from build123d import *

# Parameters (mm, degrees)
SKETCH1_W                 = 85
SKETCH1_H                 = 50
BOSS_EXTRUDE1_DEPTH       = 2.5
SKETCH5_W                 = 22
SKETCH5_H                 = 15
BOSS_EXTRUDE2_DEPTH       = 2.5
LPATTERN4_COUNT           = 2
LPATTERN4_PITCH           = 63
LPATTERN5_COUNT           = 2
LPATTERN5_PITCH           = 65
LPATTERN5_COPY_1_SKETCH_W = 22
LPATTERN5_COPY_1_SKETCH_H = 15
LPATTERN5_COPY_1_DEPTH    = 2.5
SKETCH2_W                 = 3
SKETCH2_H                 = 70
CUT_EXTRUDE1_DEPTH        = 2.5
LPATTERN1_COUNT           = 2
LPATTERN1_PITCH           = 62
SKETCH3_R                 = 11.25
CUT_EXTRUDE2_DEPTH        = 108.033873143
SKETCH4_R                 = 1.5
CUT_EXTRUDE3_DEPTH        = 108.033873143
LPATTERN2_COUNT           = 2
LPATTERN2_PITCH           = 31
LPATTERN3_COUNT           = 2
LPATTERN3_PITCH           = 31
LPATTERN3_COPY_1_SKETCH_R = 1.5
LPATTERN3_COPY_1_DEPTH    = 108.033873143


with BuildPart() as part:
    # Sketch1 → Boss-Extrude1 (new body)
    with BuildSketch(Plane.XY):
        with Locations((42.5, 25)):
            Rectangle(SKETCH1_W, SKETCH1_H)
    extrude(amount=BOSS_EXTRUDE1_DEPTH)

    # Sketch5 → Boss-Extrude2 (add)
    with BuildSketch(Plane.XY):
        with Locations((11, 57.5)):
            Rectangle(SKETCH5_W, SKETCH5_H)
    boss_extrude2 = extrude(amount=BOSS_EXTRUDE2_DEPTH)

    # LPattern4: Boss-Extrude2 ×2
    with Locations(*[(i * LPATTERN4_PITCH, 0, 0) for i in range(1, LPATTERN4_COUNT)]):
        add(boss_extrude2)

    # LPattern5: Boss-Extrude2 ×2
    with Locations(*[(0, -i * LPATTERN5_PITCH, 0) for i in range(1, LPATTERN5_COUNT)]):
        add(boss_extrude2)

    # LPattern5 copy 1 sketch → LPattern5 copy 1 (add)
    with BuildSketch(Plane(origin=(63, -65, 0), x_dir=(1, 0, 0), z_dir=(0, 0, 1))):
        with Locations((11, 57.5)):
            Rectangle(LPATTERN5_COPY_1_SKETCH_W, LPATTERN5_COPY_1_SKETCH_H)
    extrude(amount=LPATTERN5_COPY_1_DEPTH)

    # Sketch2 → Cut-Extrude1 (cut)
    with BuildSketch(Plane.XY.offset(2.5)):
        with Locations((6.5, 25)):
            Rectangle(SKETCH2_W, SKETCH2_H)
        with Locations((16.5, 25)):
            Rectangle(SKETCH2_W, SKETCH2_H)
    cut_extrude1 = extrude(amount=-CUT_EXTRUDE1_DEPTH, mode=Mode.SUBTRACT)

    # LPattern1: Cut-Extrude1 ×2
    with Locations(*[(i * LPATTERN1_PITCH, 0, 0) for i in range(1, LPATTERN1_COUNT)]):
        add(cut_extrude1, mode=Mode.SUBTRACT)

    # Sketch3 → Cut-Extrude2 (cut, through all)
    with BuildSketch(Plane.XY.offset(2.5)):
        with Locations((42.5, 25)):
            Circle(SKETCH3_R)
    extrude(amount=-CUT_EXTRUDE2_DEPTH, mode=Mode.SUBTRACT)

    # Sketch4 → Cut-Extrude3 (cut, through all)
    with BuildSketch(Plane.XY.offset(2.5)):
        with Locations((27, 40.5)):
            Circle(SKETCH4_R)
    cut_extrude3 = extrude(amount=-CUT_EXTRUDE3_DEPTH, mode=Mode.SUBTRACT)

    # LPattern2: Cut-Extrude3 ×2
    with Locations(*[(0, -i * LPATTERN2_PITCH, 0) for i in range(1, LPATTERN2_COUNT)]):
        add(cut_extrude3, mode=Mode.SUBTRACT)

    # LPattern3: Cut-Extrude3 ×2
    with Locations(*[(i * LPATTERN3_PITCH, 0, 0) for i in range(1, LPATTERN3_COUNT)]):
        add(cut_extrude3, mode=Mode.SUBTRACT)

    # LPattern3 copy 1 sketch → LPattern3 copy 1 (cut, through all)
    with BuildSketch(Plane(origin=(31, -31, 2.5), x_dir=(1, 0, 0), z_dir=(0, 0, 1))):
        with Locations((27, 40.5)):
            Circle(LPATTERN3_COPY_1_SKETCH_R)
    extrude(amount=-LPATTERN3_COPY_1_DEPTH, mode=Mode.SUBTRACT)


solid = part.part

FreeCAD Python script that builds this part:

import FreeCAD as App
import Part
import Sketcher
from FreeCAD import Vector
Q = App.Units.Quantity


def add_polygon(sketch, points):
    """Adds a closed chain of lines whose ends are joined by coincident constraints."""
    first, n = sketch.GeometryCount, len(points)
    for a, b in zip(points, points[1:] + points[:1]):
        sketch.addGeometry(Part.LineSegment(App.Vector(*a, 0), App.Vector(*b, 0)), False)
    for i in range(n):
        sketch.addConstraint(Sketcher.Constraint("Coincident", first + i, 2, first + (i + 1) % n, 1))

doc = App.newDocument("Part")
body = doc.addObject("PartDesign::Body", "Body")

# Sketch on XY plane
sketch1 = doc.addObject("Sketcher::SketchObject", "Sketch")
body.addObject(sketch1)
sketch1.AttachmentSupport = (doc.XY_Plane, [""])
sketch1.MapMode = "FlatFace"
add_polygon(sketch1, [(0, 50), (0, 0), (85, 0), (85, 50)])  # lines 0-3
sketch1.addConstraint([
    Sketcher.Constraint("Vertical", 0),
    Sketcher.Constraint("Horizontal", 1),
    Sketcher.Constraint("Vertical", 2),
    Sketcher.Constraint("Horizontal", 3),
    Sketcher.Constraint("Coincident", 0, 2, -1, 1),
    Sketcher.Constraint("DistanceX", 1, 1, 1, 2, Q("85 mm")),
    Sketcher.Constraint("DistanceY", 0, 2, 0, 1, Q("50 mm")),
])
pad1 = doc.addObject("PartDesign::Pad", "Pad")
body.addObject(pad1)
pad1.Profile = sketch1
pad1.Length = 2.5

# Sketch on XY plane
sketch2 = doc.addObject("Sketcher::SketchObject", "Sketch001")
body.addObject(sketch2)
sketch2.AttachmentSupport = (doc.XY_Plane, [""])
sketch2.MapMode = "FlatFace"
add_polygon(sketch2, [(0, 65), (0, 50), (22, 50), (22, 65)])  # lines 0-3
sketch2.addConstraint([
    Sketcher.Constraint("Vertical", 0),
    Sketcher.Constraint("Horizontal", 1),
    Sketcher.Constraint("Vertical", 2),
    Sketcher.Constraint("Horizontal", 3),
    Sketcher.Constraint("PointOnObject", 0, 2, -2),
    Sketcher.Constraint("DistanceX", 1, 1, 1, 2, Q("22 mm")),
    Sketcher.Constraint("DistanceY", 0, 2, 0, 1, Q("15 mm")),
    Sketcher.Constraint("DistanceY", -1, 1, 0, 2, Q("50 mm")),
])
pad2 = doc.addObject("PartDesign::Pad", "Pad001")
body.addObject(pad2)
pad2.Profile = sketch2
pad2.Length = 2.5
doc.recompute()

linearpattern = doc.addObject("PartDesign::LinearPattern", "LinearPattern")
body.addObject(linearpattern)
linearpattern.Originals = [pad2]
linearpattern.Direction = (doc.X_Axis, [""])
linearpattern.Mode = "offset"
linearpattern.Offset = 63
linearpattern.Occurrences = 2
body.Tip = linearpattern
doc.recompute()

linearpattern2 = doc.addObject("PartDesign::LinearPattern", "LinearPattern001")
body.addObject(linearpattern2)
linearpattern2.Originals = [pad2]
linearpattern2.Direction = (doc.Y_Axis, [""])
linearpattern2.Mode = "offset"
linearpattern2.Offset = 65
linearpattern2.Occurrences = 2
linearpattern2.Reversed = True
body.Tip = linearpattern2

# Sketch on XY plane
sketch3 = doc.addObject("Sketcher::SketchObject", "Sketch002")
body.addObject(sketch3)
sketch3.AttachmentSupport = (doc.XY_Plane, [""])
sketch3.MapMode = "FlatFace"
add_polygon(sketch3, [(63, 0), (63, -15), (85, -15), (85, 0)])  # lines 0-3
sketch3.addConstraint([
    Sketcher.Constraint("Vertical", 0),
    Sketcher.Constraint("Horizontal", 1),
    Sketcher.Constraint("Vertical", 2),
    Sketcher.Constraint("Horizontal", 3),
    Sketcher.Constraint("PointOnObject", 2, 2, -1),
    Sketcher.Constraint("DistanceX", 1, 1, 1, 2, Q("22 mm")),
    Sketcher.Constraint("DistanceY", 0, 2, 0, 1, Q("15 mm")),
    Sketcher.Constraint("DistanceX", -1, 1, 0, 2, Q("63 mm")),
])
pad3 = doc.addObject("PartDesign::Pad", "Pad002")
body.addObject(pad3)
pad3.Profile = sketch3
pad3.Length = 2.5

# Sketch on XY plane
sketch4 = doc.addObject("Sketcher::SketchObject", "Sketch003")
body.addObject(sketch4)
sketch4.AttachmentSupport = (doc.XY_Plane, [""])
sketch4.MapMode = "FlatFace"
sketch4.AttachmentOffset = App.Placement(Vector(0, 0, 2.5), App.Rotation())
add_polygon(sketch4, [(5, 60), (5, -10), (8, -10), (8, 60)])  # lines 0-3
add_polygon(sketch4, [(15, 60), (15, -10), (18, -10), (18, 60)])  # lines 4-7
sketch4.addConstraint([
    Sketcher.Constraint("Vertical", 0),
    Sketcher.Constraint("Horizontal", 1),
    Sketcher.Constraint("Vertical", 2),
    Sketcher.Constraint("Horizontal", 3),
    Sketcher.Constraint("Vertical", 4),
    Sketcher.Constraint("Horizontal", 5),
    Sketcher.Constraint("Vertical", 6),
    Sketcher.Constraint("Horizontal", 7),
    Sketcher.Constraint("Horizontal", 1, 2, 4, 2),
    Sketcher.Constraint("Horizontal", 3, 2, 6, 2),
    Sketcher.Constraint("Equal", 3, 5),
    Sketcher.Constraint("DistanceX", 1, 1, 1, 2, Q("3 mm")),
    Sketcher.Constraint("DistanceY", 0, 2, 0, 1, Q("70 mm")),
    Sketcher.Constraint("DistanceX", -1, 1, 0, 2, Q("5 mm")),
    Sketcher.Constraint("DistanceY", 0, 2, -1, 1, Q("10 mm")),
    Sketcher.Constraint("DistanceX", -1, 1, 4, 2, Q("15 mm")),
])
pocket1 = doc.addObject("PartDesign::Pocket", "Pocket")
body.addObject(pocket1)
pocket1.Profile = sketch4
pocket1.Length = 2.5
doc.recompute()

linearpattern3 = doc.addObject("PartDesign::LinearPattern", "LinearPattern002")
body.addObject(linearpattern3)
linearpattern3.Originals = [pocket1]
linearpattern3.Direction = (doc.X_Axis, [""])
linearpattern3.Mode = "offset"
linearpattern3.Offset = 62
linearpattern3.Occurrences = 2
body.Tip = linearpattern3

# Sketch on XY plane
sketch5 = doc.addObject("Sketcher::SketchObject", "Sketch004")
body.addObject(sketch5)
sketch5.AttachmentSupport = (doc.XY_Plane, [""])
sketch5.MapMode = "FlatFace"
sketch5.AttachmentOffset = App.Placement(Vector(0, 0, 2.5), App.Rotation())
sketch5.addGeometry(Part.Circle(Vector(42, 25, 0), Vector(0, 0, 1), 11), False)
sketch5.addConstraint([
    Sketcher.Constraint("Diameter", 0, Q("22.5 mm")),
    Sketcher.Constraint("DistanceY", -1, 1, 0, 3, Q("25 mm")),
    Sketcher.Constraint("DistanceX", -1, 1, 0, 3, Q("42.5 mm")),
])
pocket2 = doc.addObject("PartDesign::Pocket", "Pocket001")
body.addObject(pocket2)
pocket2.Profile = sketch5
pocket2.Type = "ThroughAll"

# Sketch on XY plane
sketch6 = doc.addObject("Sketcher::SketchObject", "Sketch005")
body.addObject(sketch6)
sketch6.AttachmentSupport = (doc.XY_Plane, [""])
sketch6.MapMode = "FlatFace"
sketch6.AttachmentOffset = App.Placement(Vector(0, 0, 2.5), App.Rotation())
sketch6.addGeometry(Part.Circle(Vector(27, 40.5, 0), Vector(0, 0, 1), 1.5), False)
sketch6.addConstraint([
    Sketcher.Constraint("Diameter", 0, Q("3 mm")),
    Sketcher.Constraint("DistanceX", -1, 1, 0, 3, Q("27 mm")),
    Sketcher.Constraint("DistanceY", -1, 1, 0, 3, Q("40.5 mm")),
])
pocket3 = doc.addObject("PartDesign::Pocket", "Pocket002")
body.addObject(pocket3)
pocket3.Profile = sketch6
pocket3.Type = "ThroughAll"
doc.recompute()

linearpattern4 = doc.addObject("PartDesign::LinearPattern", "LinearPattern003")
body.addObject(linearpattern4)
linearpattern4.Originals = [pocket3]
linearpattern4.Direction = (doc.Y_Axis, [""])
linearpattern4.Mode = "offset"
linearpattern4.Offset = 31
linearpattern4.Occurrences = 2
linearpattern4.Reversed = True
body.Tip = linearpattern4
doc.recompute()

linearpattern5 = doc.addObject("PartDesign::LinearPattern", "LinearPattern004")
body.addObject(linearpattern5)
linearpattern5.Originals = [pocket3]
linearpattern5.Direction = (doc.X_Axis, [""])
linearpattern5.Mode = "offset"
linearpattern5.Offset = 31
linearpattern5.Occurrences = 2
body.Tip = linearpattern5

# Sketch on XY plane
sketch7 = doc.addObject("Sketcher::SketchObject", "Sketch006")
body.addObject(sketch7)
sketch7.AttachmentSupport = (doc.XY_Plane, [""])
sketch7.MapMode = "FlatFace"
sketch7.AttachmentOffset = App.Placement(Vector(0, 0, 2.5), App.Rotation())
sketch7.addGeometry(Part.Circle(Vector(58, 9.5, 0), Vector(0, 0, 1), 1.5), False)
sketch7.addConstraint([
    Sketcher.Constraint("Diameter", 0, Q("3 mm")),
    Sketcher.Constraint("DistanceX", -1, 1, 0, 3, Q("58 mm")),
    Sketcher.Constraint("DistanceY", -1, 1, 0, 3, Q("9.5 mm")),
])
pocket4 = doc.addObject("PartDesign::Pocket", "Pocket003")
body.addObject(pocket4)
pocket4.Profile = sketch7
pocket4.Type = "ThroughAll"

doc.recompute()
